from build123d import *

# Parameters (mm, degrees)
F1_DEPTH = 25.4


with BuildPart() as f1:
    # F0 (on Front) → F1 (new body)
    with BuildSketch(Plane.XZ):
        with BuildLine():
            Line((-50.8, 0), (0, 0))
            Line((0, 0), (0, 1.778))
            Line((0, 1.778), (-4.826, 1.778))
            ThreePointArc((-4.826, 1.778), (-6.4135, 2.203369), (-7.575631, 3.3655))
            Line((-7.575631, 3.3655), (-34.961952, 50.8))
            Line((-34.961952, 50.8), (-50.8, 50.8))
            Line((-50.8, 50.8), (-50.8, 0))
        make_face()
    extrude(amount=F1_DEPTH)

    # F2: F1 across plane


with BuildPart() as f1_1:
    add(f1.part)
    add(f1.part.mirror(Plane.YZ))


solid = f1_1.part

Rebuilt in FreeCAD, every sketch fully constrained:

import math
import FreeCAD as App
import Part
import Sketcher
from FreeCAD import Vector
Q = App.Units.Quantity

doc = App.newDocument("Part")
body = doc.addObject("PartDesign::Body", "Body")

sketch1 = body.newObject("Sketcher::SketchObject", "Sketch")
sketch1.AttachmentSupport = (doc.getObject("XZ_Plane"), [""])
sketch1.MapMode = "FlatFace"
sketch1.addGeometry(Part.LineSegment(Vector(-50.8, 0, 0), Vector(0, 0, 0)), False)
sketch1.addGeometry(Part.LineSegment(Vector(0, 0, 0), Vector(0, 1.8, 0)), False)
sketch1.addGeometry(Part.LineSegment(Vector(0, 1.8, 0), Vector(-4.8, 1.8, 0)), False)
sketch1.addGeometry(Part.ArcOfCircle(Part.Circle(Vector(-4.8, 5, 0), Vector(0, 0, 1), 3.2), math.radians(-150), math.radians(-90)), False)
sketch1.addGeometry(Part.LineSegment(Vector(-7.6, 3.4, 0), Vector(-35, 50.8, 0)), False)
sketch1.addGeometry(Part.LineSegment(Vector(-35, 50.8, 0), Vector(-50.8, 50.8, 0)), False)
sketch1.addGeometry(Part.LineSegment(Vector(-50.8, 50.8, 0), Vector(-50.8, 0, 0)), False)
sketch1.addConstraint(Sketcher.Constraint("Coincident", 0, 2, 1, 1))
sketch1.addConstraint(Sketcher.Constraint("Coincident", 1, 2, 2, 1))
sketch1.addConstraint(Sketcher.Constraint("Tangent", 2, 2, 3, 2))
sketch1.addConstraint(Sketcher.Constraint("Tangent", 3, 1, 4, 1))
sketch1.addConstraint(Sketcher.Constraint("Coincident", 4, 2, 5, 1))
sketch1.addConstraint(Sketcher.Constraint("Coincident", 5, 2, 6, 1))
sketch1.addConstraint(Sketcher.Constraint("Coincident", 6, 2, 0, 1))
sketch1.addConstraint(Sketcher.Constraint("Horizontal", 0))
sketch1.addConstraint(Sketcher.Constraint("Vertical", 1))
sketch1.addConstraint(Sketcher.Constraint("Horizontal", 2))
sketch1.addConstraint(Sketcher.Constraint("Horizontal", 5))
sketch1.addConstraint(Sketcher.Constraint("Vertical", 6))
sketch1.addConstraint(Sketcher.Constraint("Coincident", 0, 2, -1, 1))
sketch1.addConstraint(Sketcher.Constraint("Equal", 0, 6))
sketch1.addConstraint(Sketcher.Constraint("DistanceX", 0, 1, 0, 2, Q("2 in")))
sketch1.addConstraint(Sketcher.Constraint("Angle", 4, Q("120 deg")))
sketch1.addConstraint(Sketcher.Constraint("Radius", 3, Q("0.125 in")))
sketch1.addConstraint(Sketcher.Constraint("DistanceX", 2, 2, 2, 1, Q("0.19 in")))
sketch1.addConstraint(Sketcher.Constraint("DistanceY", 1, 1, 1, 2, Q("0.07 in")))
pad1 = body.newObject("PartDesign::Pad", "Pad")
pad1.Profile = sketch1
pad1.Length = Q("1 in")
body2 = doc.addObject("PartDesign::Body", "Body001")
doc.recompute()

body2.BaseFeature = body
doc.recompute()

mirroring = doc.addObject("Part::Mirroring", "Mirroring")
mirroring.Source = body
mirroring.Base = Vector(0, 0, 0)
mirroring.Normal = Vector(1, 0, 0)
body3 = doc.addObject("PartDesign::Body", "Body002")
body3.BaseFeature = mirroring
boolean = body2.newObject("PartDesign::Boolean", "Boolean")
boolean.Type = "Fuse"
boolean.addObjects([body3])
doc.recompute()
mirroring.Visibility = False

doc.recompute()
